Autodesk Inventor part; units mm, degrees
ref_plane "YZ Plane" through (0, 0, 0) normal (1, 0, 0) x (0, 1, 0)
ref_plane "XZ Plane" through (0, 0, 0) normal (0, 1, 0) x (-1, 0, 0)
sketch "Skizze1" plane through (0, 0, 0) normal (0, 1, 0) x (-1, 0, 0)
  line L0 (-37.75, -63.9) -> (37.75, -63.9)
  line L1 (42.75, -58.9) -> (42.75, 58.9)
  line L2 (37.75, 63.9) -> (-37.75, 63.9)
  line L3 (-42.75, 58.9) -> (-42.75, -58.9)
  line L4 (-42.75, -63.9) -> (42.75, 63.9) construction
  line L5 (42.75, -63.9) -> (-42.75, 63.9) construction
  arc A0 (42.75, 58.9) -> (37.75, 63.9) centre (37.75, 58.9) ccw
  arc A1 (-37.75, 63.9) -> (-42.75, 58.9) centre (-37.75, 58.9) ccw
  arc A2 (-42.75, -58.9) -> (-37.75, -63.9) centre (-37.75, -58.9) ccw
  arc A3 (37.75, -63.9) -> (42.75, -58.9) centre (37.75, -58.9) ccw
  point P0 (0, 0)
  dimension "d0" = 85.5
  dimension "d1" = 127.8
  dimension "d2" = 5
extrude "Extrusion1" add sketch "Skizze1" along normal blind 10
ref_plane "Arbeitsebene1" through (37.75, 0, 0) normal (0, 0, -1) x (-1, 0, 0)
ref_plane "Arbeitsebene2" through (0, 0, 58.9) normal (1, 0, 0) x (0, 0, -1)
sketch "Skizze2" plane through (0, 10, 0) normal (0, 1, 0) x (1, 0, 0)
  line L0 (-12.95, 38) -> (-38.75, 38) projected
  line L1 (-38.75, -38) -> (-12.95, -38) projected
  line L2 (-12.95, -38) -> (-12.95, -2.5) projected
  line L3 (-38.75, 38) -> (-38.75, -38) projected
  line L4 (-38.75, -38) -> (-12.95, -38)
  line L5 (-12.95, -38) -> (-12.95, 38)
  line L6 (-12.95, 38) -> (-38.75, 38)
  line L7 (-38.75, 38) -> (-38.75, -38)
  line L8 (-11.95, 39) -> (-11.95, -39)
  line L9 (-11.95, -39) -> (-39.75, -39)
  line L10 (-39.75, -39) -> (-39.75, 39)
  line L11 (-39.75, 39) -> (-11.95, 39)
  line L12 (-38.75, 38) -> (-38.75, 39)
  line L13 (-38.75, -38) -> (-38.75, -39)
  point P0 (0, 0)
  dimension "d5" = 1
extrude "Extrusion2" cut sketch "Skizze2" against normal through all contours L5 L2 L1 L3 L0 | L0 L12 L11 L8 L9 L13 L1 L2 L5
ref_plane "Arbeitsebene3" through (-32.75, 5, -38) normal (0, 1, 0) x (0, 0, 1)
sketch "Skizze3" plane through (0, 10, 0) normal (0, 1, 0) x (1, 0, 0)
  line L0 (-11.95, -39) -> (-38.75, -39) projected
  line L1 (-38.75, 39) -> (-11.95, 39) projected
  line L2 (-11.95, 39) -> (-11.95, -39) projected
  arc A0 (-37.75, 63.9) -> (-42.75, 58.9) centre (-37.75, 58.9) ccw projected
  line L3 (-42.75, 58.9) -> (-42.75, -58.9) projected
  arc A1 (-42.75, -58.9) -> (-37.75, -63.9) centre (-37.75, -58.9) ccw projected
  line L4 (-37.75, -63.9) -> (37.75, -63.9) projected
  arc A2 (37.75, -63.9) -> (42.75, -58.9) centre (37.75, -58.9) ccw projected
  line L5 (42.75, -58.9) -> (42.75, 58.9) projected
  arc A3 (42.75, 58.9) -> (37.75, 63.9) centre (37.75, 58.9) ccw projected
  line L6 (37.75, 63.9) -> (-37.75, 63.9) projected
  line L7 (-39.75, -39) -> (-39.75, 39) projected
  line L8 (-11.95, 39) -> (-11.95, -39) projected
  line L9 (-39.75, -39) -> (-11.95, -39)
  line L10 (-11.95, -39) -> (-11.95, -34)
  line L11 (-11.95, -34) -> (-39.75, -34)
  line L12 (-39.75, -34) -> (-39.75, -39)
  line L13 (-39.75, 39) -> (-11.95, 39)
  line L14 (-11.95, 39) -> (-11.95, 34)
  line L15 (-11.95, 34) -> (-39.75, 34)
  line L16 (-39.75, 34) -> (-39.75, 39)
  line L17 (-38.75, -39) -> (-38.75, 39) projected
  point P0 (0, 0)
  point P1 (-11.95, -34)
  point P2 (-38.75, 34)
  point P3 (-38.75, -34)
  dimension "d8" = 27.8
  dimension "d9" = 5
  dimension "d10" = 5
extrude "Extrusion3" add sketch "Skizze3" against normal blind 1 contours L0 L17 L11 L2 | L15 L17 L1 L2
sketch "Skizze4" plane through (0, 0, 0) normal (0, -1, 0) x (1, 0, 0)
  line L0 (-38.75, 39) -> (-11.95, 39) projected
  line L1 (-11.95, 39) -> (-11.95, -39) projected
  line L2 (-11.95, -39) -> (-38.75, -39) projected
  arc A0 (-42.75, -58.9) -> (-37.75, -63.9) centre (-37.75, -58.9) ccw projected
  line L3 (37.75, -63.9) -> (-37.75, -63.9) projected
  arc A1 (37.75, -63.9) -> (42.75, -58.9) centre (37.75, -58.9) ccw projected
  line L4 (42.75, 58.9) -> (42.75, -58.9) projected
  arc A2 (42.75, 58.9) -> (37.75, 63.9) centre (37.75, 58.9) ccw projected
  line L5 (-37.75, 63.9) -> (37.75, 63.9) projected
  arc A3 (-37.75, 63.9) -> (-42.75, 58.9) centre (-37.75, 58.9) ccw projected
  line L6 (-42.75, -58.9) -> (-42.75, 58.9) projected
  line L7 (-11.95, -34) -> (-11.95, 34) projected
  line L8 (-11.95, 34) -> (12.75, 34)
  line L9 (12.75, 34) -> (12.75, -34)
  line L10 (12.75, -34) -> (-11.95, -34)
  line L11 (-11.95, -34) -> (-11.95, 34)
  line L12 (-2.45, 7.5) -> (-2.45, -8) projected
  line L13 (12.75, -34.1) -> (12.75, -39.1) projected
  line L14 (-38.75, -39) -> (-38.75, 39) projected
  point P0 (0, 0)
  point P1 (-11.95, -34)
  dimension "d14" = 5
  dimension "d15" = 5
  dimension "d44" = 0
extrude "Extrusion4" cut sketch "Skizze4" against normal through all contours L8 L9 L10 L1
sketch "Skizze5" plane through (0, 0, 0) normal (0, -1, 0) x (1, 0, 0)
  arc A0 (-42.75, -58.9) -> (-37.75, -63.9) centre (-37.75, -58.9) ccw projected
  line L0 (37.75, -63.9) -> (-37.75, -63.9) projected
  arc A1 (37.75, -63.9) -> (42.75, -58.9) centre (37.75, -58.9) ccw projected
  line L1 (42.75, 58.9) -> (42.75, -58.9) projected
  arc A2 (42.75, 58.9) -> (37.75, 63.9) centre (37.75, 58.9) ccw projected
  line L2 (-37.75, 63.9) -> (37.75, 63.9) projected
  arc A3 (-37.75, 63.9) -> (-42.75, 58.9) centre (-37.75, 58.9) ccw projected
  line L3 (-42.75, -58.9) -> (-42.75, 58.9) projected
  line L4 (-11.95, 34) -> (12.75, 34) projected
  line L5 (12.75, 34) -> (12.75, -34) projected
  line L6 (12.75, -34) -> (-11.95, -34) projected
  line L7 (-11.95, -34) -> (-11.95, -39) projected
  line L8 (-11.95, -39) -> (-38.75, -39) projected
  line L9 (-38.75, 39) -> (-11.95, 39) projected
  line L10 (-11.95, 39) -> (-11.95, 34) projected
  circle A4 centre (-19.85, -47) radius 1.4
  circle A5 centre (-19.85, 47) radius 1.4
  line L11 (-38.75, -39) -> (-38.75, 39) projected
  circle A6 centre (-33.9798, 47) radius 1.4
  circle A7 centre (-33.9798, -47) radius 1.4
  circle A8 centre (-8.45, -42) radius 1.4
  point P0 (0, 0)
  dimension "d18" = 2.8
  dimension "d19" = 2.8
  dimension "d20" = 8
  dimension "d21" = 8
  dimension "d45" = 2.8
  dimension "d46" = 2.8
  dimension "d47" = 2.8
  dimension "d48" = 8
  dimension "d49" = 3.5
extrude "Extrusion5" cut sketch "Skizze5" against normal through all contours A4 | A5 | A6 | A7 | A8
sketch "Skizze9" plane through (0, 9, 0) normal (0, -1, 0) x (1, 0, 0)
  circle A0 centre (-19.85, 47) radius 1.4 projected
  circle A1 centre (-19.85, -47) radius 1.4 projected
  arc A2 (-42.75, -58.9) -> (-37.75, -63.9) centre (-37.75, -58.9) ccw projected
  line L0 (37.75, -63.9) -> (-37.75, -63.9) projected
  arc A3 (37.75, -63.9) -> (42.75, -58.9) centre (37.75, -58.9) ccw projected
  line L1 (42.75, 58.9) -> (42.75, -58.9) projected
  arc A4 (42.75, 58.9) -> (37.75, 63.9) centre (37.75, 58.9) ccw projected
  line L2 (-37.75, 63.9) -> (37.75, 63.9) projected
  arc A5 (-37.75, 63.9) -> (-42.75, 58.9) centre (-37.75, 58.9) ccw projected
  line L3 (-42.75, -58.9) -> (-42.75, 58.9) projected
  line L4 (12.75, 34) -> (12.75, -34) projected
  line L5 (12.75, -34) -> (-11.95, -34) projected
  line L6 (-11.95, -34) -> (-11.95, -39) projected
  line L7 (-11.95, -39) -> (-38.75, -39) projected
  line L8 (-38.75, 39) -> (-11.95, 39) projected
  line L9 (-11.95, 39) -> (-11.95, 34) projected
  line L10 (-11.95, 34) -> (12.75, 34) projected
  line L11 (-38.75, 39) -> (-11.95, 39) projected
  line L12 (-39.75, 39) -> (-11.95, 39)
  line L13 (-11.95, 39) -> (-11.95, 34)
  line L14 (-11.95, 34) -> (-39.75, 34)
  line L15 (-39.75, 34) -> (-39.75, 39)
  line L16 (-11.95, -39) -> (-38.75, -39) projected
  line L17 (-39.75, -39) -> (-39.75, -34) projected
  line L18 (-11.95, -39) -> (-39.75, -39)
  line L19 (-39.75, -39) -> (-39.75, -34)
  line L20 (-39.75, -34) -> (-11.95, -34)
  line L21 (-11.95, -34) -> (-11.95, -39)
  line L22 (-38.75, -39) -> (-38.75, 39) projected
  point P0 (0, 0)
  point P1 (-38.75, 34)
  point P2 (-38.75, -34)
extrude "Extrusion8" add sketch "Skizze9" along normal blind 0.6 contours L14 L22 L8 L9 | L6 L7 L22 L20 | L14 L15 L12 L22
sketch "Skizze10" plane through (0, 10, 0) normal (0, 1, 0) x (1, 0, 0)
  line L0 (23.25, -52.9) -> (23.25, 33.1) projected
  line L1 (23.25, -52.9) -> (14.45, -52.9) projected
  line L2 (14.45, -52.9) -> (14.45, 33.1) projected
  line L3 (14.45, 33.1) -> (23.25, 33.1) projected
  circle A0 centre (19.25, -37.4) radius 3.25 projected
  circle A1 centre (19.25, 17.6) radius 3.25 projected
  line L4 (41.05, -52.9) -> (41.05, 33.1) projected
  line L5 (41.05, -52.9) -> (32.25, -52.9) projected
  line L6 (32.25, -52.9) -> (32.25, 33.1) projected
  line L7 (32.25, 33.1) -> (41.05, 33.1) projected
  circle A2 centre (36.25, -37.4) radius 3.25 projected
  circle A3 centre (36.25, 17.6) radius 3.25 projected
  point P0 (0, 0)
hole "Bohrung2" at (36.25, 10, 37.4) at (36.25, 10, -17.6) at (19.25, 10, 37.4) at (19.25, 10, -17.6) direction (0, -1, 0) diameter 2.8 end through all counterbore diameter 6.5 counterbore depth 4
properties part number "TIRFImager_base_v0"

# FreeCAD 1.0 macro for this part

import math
import FreeCAD as App
import Part
import Sketcher
from FreeCAD import Vector


def add_polygon(sketch, points):
    """Adds a closed chain of lines whose ends are joined by coincident constraints."""
    first, n = sketch.GeometryCount, len(points)
    for a, b in zip(points, points[1:] + points[:1]):
        sketch.addGeometry(Part.LineSegment(App.Vector(*a, 0), App.Vector(*b, 0)), False)
    for i in range(n):
        sketch.addConstraint(Sketcher.Constraint("Coincident", first + i, 2, first + (i + 1) % n, 1))

doc = App.newDocument("Part")
params = doc.addObject("Spreadsheet::Sheet", "Params")
for row, (alias, value) in enumerate([
    ("sketch1_radius", "5 mm"),
    ("sketch1_height", "117.8 mm"),
    ("pad1_length", "10 mm"),
    ("sketch2_height", "78 mm"),
    ("sketch2_width", "26.8 mm"),
    ("sketch3_height", "5 mm"),
    ("sketch3_width", "26.8 mm"),
    ("pad2_length", "1 mm"),
    ("sketch4_height", "68 mm"),
    ("sketch4_width", "24.7 mm"),
    ("sketch5_diameter", "2.8 mm"),
    ("sketch6_height", "5 mm"),
    ("sketch6_width", "27.8 mm"),
    ("sketch6_width2", "26.8 mm"),
    ("pad3_length", "0.6 mm"),
    ("sketch7_diameter", "2.8 mm"),
    ("hole_diameter", "2.8 mm"),
    ("hole_cbore_diameter", "6.5 mm"),
    ("hole_cbore_depth", "4 mm"),
], start=1):
    params.set(f"A{row}", alias)
    params.set(f"B{row}", "=" + value)
    params.setAlias(f"B{row}", alias)

body = doc.addObject("PartDesign::Body", "Body")

# Sketch on XZ plane
sketch1 = body.newObject("Sketcher::SketchObject", "Sketch")
sketch1.AttachmentSupport = (doc.getObject("XZ_Plane"), [""])
sketch1.MapMode = "FlatFace"
sketch1.addGeometry(Part.ArcOfCircle(Part.Circle(Vector(38, -59, 0), Vector(0, 0, 1), 5), math.radians(-90), math.radians(0)), False)
sketch1.addGeometry(Part.LineSegment(Vector(38, -64, 0), Vector(-38, -64, 0)), False)
sketch1.addGeometry(Part.ArcOfCircle(Part.Circle(Vector(-38, -59, 0), Vector(0, 0, 1), 5), math.radians(180), math.radians(270)), False)
sketch1.addGeometry(Part.LineSegment(Vector(-43, -59, 0), Vector(-43, 59, 0)), False)
sketch1.addGeometry(Part.ArcOfCircle(Part.Circle(Vector(-38, 59, 0), Vector(0, 0, 1), 5), math.radians(90), math.radians(180)), False)
sketch1.addGeometry(Part.LineSegment(Vector(-38, 64, 0), Vector(38, 64, 0)), False)
sketch1.addGeometry(Part.ArcOfCircle(Part.Circle(Vector(38, 59, 0), Vector(0, 0, 1), 5), math.radians(0), math.radians(90)), False)
sketch1.addGeometry(Part.LineSegment(Vector(43, 59, 0), Vector(43, -59, 0)), False)
sketch1.addConstraint(Sketcher.Constraint("Tangent", 0, 1, 1, 1))
sketch1.addConstraint(Sketcher.Constraint("Tangent", 1, 2, 2, 2))
sketch1.addConstraint(Sketcher.Constraint("Tangent", 2, 1, 3, 1))
sketch1.addConstraint(Sketcher.Constraint("Tangent", 3, 2, 4, 2))
sketch1.addConstraint(Sketcher.Constraint("Tangent", 4, 1, 5, 1))
sketch1.addConstraint(Sketcher.Constraint("Tangent", 5, 2, 6, 2))
sketch1.addConstraint(Sketcher.Constraint("Tangent", 6, 1, 7, 1))
sketch1.addConstraint(Sketcher.Constraint("Tangent", 7, 2, 0, 2))
sketch1.addConstraint(Sketcher.Constraint("Horizontal", 1))
sketch1.addConstraint(Sketcher.Constraint("Vertical", 3))
sketch1.addConstraint(Sketcher.Constraint("Horizontal", 5))
sketch1.addConstraint(Sketcher.Constraint("Vertical", 7))
sketch1.addConstraint(Sketcher.Constraint("Equal", 0, 2))
sketch1.addConstraint(Sketcher.Constraint("Equal", 2, 4))
sketch1.addConstraint(Sketcher.Constraint("Equal", 4, 6))
sketch1.addConstraint(Sketcher.Constraint("Symmetric", 0, 3, 4, 3, -1, 1))
sketch1.addConstraint(Sketcher.Constraint("Radius", 0, 5.0))
sketch1.addConstraint(Sketcher.Constraint("DistanceX", 3, 2, 6, 1, 85.5))
sketch1.addConstraint(Sketcher.Constraint("DistanceY", 3, 1, 3, 2, 117.8))
sketch1.setExpression("Constraints[16]", "Params.sketch1_radius")
sketch1.setExpression("Constraints[18]", "Params.sketch1_height")
pad1 = body.newObject("PartDesign::Pad", "Pad")
pad1.Profile = sketch1
pad1.setExpression("Length", "Params.pad1_length")
pad1.Reversed = True

# Sketch on XZ plane
sketch2 = body.newObject("Sketcher::SketchObject", "Sketch001")
sketch2.AttachmentSupport = (doc.getObject("XZ_Plane"), [""])
sketch2.MapMode = "FlatFace"
sketch2.AttachmentOffset = App.Placement(Vector(0, 0, -10), App.Rotation())
add_polygon(sketch2, [(-39, 39), (-12, 39), (-12, -39), (-39, -39)])  # lines 0-3
sketch2.addConstraint(Sketcher.Constraint("Horizontal", 0))
sketch2.addConstraint(Sketcher.Constraint("Vertical", 1))
sketch2.addConstraint(Sketcher.Constraint("Horizontal", 2))
sketch2.addConstraint(Sketcher.Constraint("Vertical", 3))
sketch2.addConstraint(Sketcher.Constraint("DistanceY", 1, 2, 1, 1, 78.0))
sketch2.addConstraint(Sketcher.Constraint("DistanceX", 0, 1, 0, 2, 26.8))
sketch2.addConstraint(Sketcher.Constraint("DistanceY", -1, 1, 0, 2, 39.0))
sketch2.addConstraint(Sketcher.Constraint("DistanceX", 0, 2, -1, 1, 11.95))
sketch2.setExpression("Constraints[8]", "Params.sketch2_height")
sketch2.setExpression("Constraints[9]", "Params.sketch2_width")
pocket1 = body.newObject("PartDesign::Pocket", "Pocket")
pocket1.Profile = sketch2
pocket1.Type = "ThroughAll"
pocket1.Reversed = True

# Sketch on XZ plane
sketch3 = body.newObject("Sketcher::SketchObject", "Sketch002")
sketch3.AttachmentSupport = (doc.getObject("XZ_Plane"), [""])
sketch3.MapMode = "FlatFace"
sketch3.AttachmentOffset = App.Placement(Vector(0, 0, -10), App.Rotation())
add_polygon(sketch3, [(-39, 39), (-12, 39), (-12, 34), (-39, 34)])  # lines 0-3
add_polygon(sketch3, [(-39, -34), (-12, -34), (-12, -39), (-39, -39)])  # lines 4-7
sketch3.addConstraint(Sketcher.Constraint("Horizontal", 0))
sketch3.addConstraint(Sketcher.Constraint("Vertical", 1))
sketch3.addConstraint(Sketcher.Constraint("Horizontal", 2))
sketch3.addConstraint(Sketcher.Constraint("Vertical", 3))
sketch3.addConstraint(Sketcher.Constraint("Horizontal", 4))
sketch3.addConstraint(Sketcher.Constraint("Vertical", 5))
sketch3.addConstraint(Sketcher.Constraint("Horizontal", 6))
sketch3.addConstraint(Sketcher.Constraint("Vertical", 7))
sketch3.addConstraint(Sketcher.Constraint("Symmetric", 1, 2, 4, 2, -1))
sketch3.addConstraint(Sketcher.Constraint("Symmetric", 3, 2, 6, 2, -1))
sketch3.addConstraint(Sketcher.Constraint("DistanceY", 1, 2, 1, 1, 5.0))
sketch3.addConstraint(Sketcher.Constraint("DistanceX", 0, 1, 0, 2, 26.8))
sketch3.addConstraint(Sketcher.Constraint("DistanceY", -1, 1, 0, 2, 39.0))
sketch3.addConstraint(Sketcher.Constraint("DistanceX", 0, 2, -1, 1, 11.95))
sketch3.setExpression("Constraints[18]", "Params.sketch3_height")
sketch3.setExpression("Constraints[19]", "Params.sketch3_width")
pad2 = body.newObject("PartDesign::Pad", "Pad001")
pad2.Profile = sketch3
pad2.setExpression("Length", "Params.pad2_length")

# Sketch on XZ plane
sketch4 = body.newObject("Sketcher::SketchObject", "Sketch003")
sketch4.AttachmentSupport = (doc.getObject("XZ_Plane"), [""])
sketch4.MapMode = "FlatFace"
add_polygon(sketch4, [(13, 34), (-12, 34), (-12, -34), (13, -34)])  # lines 0-3
sketch4.addConstraint(Sketcher.Constraint("Horizontal", 0))
sketch4.addConstraint(Sketcher.Constraint("Vertical", 1))
sketch4.addConstraint(Sketcher.Constraint("Horizontal", 2))
sketch4.addConstraint(Sketcher.Constraint("Vertical", 3))
sketch4.addConstraint(Sketcher.Constraint("DistanceY", 1, 2, 1, 1, 68.0))
sketch4.addConstraint(Sketcher.Constraint("DistanceX", 0, 2, 0, 1, 24.7))
sketch4.addConstraint(Sketcher.Constraint("DistanceY", -1, 1, 0, 2, 34.0))
sketch4.addConstraint(Sketcher.Constraint("DistanceX", 0, 2, -1, 1, 11.95))
sketch4.setExpression("Constraints[8]", "Params.sketch4_height")
sketch4.setExpression("Constraints[9]", "Params.sketch4_width")
pocket2 = body.newObject("PartDesign::Pocket", "Pocket001")
pocket2.Profile = sketch4
pocket2.Type = "ThroughAll"

# Sketch on XZ plane
sketch5 = body.newObject("Sketcher::SketchObject", "Sketch004")
sketch5.AttachmentSupport = (doc.getObject("XZ_Plane"), [""])
sketch5.MapMode = "FlatFace"
sketch5.addGeometry(Part.Circle(Vector(-19.9, -47, 0), Vector(0, 0, 1), 1.4), False)
sketch5.addGeometry(Part.Circle(Vector(-19.9, 47, 0), Vector(0, 0, 1), 1.4), False)
sketch5.addGeometry(Part.Circle(Vector(-34, 47, 0), Vector(0, 0, 1), 1.4), False)
sketch5.addGeometry(Part.Circle(Vector(-34, -47, 0), Vector(0, 0, 1), 1.4), False)
sketch5.addGeometry(Part.Circle(Vector(-8.4, -42, 0), Vector(0, 0, 1), 1.4), False)
sketch5.addConstraint(Sketcher.Constraint("Equal", 0, 1))
sketch5.addConstraint(Sketcher.Constraint("Equal", 1, 2))
sketch5.addConstraint(Sketcher.Constraint("Equal", 2, 3))
sketch5.addConstraint(Sketcher.Constraint("Equal", 3, 4))
sketch5.addConstraint(Sketcher.Constraint("Symmetric", 0, 3, 1, 3, -1))
sketch5.addConstraint(Sketcher.Constraint("Symmetric", 2, 3, 3, 3, -1))
sketch5.addConstraint(Sketcher.Constraint("Horizontal", 1, 3, 2, 3))
sketch5.addConstraint(Sketcher.Constraint("Diameter", 0, 2.8))
sketch5.addConstraint(Sketcher.Constraint("DistanceY", 0, 3, -1, 1, 47.0))
sketch5.addConstraint(Sketcher.Constraint("DistanceY", 4, 3, -1, 1, 42.0))
sketch5.addConstraint(Sketcher.Constraint("DistanceX", 0, 3, 4, 3, 11.4))
sketch5.addConstraint(Sketcher.Constraint("DistanceX", 0, 3, -1, 1, 19.85))
sketch5.addConstraint(Sketcher.Constraint("DistanceX", 2, 3, -1, 1, 33.9798))
sketch5.setExpression("Constraints[7]", "Params.sketch5_diameter")
pocket3 = body.newObject("PartDesign::Pocket", "Pocket002")
pocket3.Profile = sketch5
pocket3.Type = "ThroughAll"

# Sketch on XZ plane
sketch6 = body.newObject("Sketcher::SketchObject", "Sketch005")
sketch6.AttachmentSupport = (doc.getObject("XZ_Plane"), [""])
sketch6.MapMode = "FlatFace"
sketch6.AttachmentOffset = App.Placement(Vector(0, 0, -9), App.Rotation())
add_polygon(sketch6, [(-12, 34), (-12, 39), (-40, 39), (-40, 34)])  # lines 0-3
add_polygon(sketch6, [(-12, -39), (-12, -34), (-39, -34), (-39, -39)])  # lines 4-7
sketch6.addConstraint(Sketcher.Constraint("Vertical", 0))
sketch6.addConstraint(Sketcher.Constraint("Horizontal", 1))
sketch6.addConstraint(Sketcher.Constraint("Vertical", 2))
sketch6.addConstraint(Sketcher.Constraint("Horizontal", 3))
sketch6.addConstraint(Sketcher.Constraint("Vertical", 4))
sketch6.addConstraint(Sketcher.Constraint("Horizontal", 5))
sketch6.addConstraint(Sketcher.Constraint("Vertical", 6))
sketch6.addConstraint(Sketcher.Constraint("Horizontal", 7))
sketch6.addConstraint(Sketcher.Constraint("Symmetric", 3, 2, 4, 2, -1))
sketch6.addConstraint(Sketcher.Constraint("Equal", 2, 4))
sketch6.addConstraint(Sketcher.Constraint("DistanceY", 0, 1, 0, 2, 5.0))
sketch6.addConstraint(Sketcher.Constraint("DistanceX", 1, 2, 1, 1, 27.8))
sketch6.addConstraint(Sketcher.Constraint("DistanceX", 5, 2, 5, 1, 26.8))
sketch6.addConstraint(Sketcher.Constraint("DistanceY", -1, 1, 0, 2, 39.0))
sketch6.addConstraint(Sketcher.Constraint("DistanceX", 0, 2, -1, 1, 11.95))
sketch6.setExpression("Constraints[18]", "Params.sketch6_height")
sketch6.setExpression("Constraints[19]", "Params.sketch6_width")
sketch6.setExpression("Constraints[20]", "Params.sketch6_width2")
pad3 = body.newObject("PartDesign::Pad", "Pad002")
pad3.Profile = sketch6
pad3.setExpression("Length", "Params.pad3_length")

# Sketch on XZ plane
sketch7 = body.newObject("Sketcher::SketchObject", "Sketch006")
sketch7.AttachmentSupport = (doc.getObject("XZ_Plane"), [""])
sketch7.MapMode = "FlatFace"
sketch7.AttachmentOffset = App.Placement(Vector(0, 0, -10), App.Rotation())
sketch7.addGeometry(Part.Circle(Vector(36.2, 37.4, 0), Vector(0, 0, 1), 1.4), False)
sketch7.addGeometry(Part.Circle(Vector(36.2, -17.6, 0), Vector(0, 0, 1), 1.4), False)
sketch7.addGeometry(Part.Circle(Vector(19.2, 37.4, 0), Vector(0, 0, 1), 1.4), False)
sketch7.addGeometry(Part.Circle(Vector(19.2, -17.6, 0), Vector(0, 0, 1), 1.4), False)
sketch7.addConstraint(Sketcher.Constraint("Equal", 0, 1))
sketch7.addConstraint(Sketcher.Constraint("Equal", 1, 2))
sketch7.addConstraint(Sketcher.Constraint("Equal", 2, 3))
sketch7.addConstraint(Sketcher.Constraint("Horizontal", 0, 3, 2, 3))
sketch7.addConstraint(Sketcher.Constraint("Horizontal", 1, 3, 3, 3))
sketch7.addConstraint(Sketcher.Constraint("Vertical", 0, 3, 1, 3))
sketch7.addConstraint(Sketcher.Constraint("Vertical", 2, 3, 3, 3))
sketch7.addConstraint(Sketcher.Constraint("Diameter", 0, 2.8))
sketch7.addConstraint(Sketcher.Constraint("DistanceY", 1, 3, 0, 3, 55.0))
sketch7.addConstraint(Sketcher.Constraint("DistanceX", 2, 3, 0, 3, 17.0))
sketch7.addConstraint(Sketcher.Constraint("DistanceY", -1, 1, 0, 3, 37.4))
sketch7.addConstraint(Sketcher.Constraint("DistanceX", -1, 1, 0, 3, 36.25))
sketch7.setExpression("Constraints[7]", "Params.sketch7_diameter")
doc.recompute()
hole = body.newObject("PartDesign::Hole", "Hole")
hole.Profile = sketch7
hole.ThreadType = "None"
hole.setExpression("Diameter", "Params.hole_diameter")
hole.DepthType = "ThroughAll"
hole.HoleCutType = "Counterbore"
hole.setExpression("HoleCutDiameter", "Params.hole_cbore_diameter")
hole.setExpression("HoleCutDepth", "Params.hole_cbore_depth")
hole.Reversed = True

doc.recompute()
